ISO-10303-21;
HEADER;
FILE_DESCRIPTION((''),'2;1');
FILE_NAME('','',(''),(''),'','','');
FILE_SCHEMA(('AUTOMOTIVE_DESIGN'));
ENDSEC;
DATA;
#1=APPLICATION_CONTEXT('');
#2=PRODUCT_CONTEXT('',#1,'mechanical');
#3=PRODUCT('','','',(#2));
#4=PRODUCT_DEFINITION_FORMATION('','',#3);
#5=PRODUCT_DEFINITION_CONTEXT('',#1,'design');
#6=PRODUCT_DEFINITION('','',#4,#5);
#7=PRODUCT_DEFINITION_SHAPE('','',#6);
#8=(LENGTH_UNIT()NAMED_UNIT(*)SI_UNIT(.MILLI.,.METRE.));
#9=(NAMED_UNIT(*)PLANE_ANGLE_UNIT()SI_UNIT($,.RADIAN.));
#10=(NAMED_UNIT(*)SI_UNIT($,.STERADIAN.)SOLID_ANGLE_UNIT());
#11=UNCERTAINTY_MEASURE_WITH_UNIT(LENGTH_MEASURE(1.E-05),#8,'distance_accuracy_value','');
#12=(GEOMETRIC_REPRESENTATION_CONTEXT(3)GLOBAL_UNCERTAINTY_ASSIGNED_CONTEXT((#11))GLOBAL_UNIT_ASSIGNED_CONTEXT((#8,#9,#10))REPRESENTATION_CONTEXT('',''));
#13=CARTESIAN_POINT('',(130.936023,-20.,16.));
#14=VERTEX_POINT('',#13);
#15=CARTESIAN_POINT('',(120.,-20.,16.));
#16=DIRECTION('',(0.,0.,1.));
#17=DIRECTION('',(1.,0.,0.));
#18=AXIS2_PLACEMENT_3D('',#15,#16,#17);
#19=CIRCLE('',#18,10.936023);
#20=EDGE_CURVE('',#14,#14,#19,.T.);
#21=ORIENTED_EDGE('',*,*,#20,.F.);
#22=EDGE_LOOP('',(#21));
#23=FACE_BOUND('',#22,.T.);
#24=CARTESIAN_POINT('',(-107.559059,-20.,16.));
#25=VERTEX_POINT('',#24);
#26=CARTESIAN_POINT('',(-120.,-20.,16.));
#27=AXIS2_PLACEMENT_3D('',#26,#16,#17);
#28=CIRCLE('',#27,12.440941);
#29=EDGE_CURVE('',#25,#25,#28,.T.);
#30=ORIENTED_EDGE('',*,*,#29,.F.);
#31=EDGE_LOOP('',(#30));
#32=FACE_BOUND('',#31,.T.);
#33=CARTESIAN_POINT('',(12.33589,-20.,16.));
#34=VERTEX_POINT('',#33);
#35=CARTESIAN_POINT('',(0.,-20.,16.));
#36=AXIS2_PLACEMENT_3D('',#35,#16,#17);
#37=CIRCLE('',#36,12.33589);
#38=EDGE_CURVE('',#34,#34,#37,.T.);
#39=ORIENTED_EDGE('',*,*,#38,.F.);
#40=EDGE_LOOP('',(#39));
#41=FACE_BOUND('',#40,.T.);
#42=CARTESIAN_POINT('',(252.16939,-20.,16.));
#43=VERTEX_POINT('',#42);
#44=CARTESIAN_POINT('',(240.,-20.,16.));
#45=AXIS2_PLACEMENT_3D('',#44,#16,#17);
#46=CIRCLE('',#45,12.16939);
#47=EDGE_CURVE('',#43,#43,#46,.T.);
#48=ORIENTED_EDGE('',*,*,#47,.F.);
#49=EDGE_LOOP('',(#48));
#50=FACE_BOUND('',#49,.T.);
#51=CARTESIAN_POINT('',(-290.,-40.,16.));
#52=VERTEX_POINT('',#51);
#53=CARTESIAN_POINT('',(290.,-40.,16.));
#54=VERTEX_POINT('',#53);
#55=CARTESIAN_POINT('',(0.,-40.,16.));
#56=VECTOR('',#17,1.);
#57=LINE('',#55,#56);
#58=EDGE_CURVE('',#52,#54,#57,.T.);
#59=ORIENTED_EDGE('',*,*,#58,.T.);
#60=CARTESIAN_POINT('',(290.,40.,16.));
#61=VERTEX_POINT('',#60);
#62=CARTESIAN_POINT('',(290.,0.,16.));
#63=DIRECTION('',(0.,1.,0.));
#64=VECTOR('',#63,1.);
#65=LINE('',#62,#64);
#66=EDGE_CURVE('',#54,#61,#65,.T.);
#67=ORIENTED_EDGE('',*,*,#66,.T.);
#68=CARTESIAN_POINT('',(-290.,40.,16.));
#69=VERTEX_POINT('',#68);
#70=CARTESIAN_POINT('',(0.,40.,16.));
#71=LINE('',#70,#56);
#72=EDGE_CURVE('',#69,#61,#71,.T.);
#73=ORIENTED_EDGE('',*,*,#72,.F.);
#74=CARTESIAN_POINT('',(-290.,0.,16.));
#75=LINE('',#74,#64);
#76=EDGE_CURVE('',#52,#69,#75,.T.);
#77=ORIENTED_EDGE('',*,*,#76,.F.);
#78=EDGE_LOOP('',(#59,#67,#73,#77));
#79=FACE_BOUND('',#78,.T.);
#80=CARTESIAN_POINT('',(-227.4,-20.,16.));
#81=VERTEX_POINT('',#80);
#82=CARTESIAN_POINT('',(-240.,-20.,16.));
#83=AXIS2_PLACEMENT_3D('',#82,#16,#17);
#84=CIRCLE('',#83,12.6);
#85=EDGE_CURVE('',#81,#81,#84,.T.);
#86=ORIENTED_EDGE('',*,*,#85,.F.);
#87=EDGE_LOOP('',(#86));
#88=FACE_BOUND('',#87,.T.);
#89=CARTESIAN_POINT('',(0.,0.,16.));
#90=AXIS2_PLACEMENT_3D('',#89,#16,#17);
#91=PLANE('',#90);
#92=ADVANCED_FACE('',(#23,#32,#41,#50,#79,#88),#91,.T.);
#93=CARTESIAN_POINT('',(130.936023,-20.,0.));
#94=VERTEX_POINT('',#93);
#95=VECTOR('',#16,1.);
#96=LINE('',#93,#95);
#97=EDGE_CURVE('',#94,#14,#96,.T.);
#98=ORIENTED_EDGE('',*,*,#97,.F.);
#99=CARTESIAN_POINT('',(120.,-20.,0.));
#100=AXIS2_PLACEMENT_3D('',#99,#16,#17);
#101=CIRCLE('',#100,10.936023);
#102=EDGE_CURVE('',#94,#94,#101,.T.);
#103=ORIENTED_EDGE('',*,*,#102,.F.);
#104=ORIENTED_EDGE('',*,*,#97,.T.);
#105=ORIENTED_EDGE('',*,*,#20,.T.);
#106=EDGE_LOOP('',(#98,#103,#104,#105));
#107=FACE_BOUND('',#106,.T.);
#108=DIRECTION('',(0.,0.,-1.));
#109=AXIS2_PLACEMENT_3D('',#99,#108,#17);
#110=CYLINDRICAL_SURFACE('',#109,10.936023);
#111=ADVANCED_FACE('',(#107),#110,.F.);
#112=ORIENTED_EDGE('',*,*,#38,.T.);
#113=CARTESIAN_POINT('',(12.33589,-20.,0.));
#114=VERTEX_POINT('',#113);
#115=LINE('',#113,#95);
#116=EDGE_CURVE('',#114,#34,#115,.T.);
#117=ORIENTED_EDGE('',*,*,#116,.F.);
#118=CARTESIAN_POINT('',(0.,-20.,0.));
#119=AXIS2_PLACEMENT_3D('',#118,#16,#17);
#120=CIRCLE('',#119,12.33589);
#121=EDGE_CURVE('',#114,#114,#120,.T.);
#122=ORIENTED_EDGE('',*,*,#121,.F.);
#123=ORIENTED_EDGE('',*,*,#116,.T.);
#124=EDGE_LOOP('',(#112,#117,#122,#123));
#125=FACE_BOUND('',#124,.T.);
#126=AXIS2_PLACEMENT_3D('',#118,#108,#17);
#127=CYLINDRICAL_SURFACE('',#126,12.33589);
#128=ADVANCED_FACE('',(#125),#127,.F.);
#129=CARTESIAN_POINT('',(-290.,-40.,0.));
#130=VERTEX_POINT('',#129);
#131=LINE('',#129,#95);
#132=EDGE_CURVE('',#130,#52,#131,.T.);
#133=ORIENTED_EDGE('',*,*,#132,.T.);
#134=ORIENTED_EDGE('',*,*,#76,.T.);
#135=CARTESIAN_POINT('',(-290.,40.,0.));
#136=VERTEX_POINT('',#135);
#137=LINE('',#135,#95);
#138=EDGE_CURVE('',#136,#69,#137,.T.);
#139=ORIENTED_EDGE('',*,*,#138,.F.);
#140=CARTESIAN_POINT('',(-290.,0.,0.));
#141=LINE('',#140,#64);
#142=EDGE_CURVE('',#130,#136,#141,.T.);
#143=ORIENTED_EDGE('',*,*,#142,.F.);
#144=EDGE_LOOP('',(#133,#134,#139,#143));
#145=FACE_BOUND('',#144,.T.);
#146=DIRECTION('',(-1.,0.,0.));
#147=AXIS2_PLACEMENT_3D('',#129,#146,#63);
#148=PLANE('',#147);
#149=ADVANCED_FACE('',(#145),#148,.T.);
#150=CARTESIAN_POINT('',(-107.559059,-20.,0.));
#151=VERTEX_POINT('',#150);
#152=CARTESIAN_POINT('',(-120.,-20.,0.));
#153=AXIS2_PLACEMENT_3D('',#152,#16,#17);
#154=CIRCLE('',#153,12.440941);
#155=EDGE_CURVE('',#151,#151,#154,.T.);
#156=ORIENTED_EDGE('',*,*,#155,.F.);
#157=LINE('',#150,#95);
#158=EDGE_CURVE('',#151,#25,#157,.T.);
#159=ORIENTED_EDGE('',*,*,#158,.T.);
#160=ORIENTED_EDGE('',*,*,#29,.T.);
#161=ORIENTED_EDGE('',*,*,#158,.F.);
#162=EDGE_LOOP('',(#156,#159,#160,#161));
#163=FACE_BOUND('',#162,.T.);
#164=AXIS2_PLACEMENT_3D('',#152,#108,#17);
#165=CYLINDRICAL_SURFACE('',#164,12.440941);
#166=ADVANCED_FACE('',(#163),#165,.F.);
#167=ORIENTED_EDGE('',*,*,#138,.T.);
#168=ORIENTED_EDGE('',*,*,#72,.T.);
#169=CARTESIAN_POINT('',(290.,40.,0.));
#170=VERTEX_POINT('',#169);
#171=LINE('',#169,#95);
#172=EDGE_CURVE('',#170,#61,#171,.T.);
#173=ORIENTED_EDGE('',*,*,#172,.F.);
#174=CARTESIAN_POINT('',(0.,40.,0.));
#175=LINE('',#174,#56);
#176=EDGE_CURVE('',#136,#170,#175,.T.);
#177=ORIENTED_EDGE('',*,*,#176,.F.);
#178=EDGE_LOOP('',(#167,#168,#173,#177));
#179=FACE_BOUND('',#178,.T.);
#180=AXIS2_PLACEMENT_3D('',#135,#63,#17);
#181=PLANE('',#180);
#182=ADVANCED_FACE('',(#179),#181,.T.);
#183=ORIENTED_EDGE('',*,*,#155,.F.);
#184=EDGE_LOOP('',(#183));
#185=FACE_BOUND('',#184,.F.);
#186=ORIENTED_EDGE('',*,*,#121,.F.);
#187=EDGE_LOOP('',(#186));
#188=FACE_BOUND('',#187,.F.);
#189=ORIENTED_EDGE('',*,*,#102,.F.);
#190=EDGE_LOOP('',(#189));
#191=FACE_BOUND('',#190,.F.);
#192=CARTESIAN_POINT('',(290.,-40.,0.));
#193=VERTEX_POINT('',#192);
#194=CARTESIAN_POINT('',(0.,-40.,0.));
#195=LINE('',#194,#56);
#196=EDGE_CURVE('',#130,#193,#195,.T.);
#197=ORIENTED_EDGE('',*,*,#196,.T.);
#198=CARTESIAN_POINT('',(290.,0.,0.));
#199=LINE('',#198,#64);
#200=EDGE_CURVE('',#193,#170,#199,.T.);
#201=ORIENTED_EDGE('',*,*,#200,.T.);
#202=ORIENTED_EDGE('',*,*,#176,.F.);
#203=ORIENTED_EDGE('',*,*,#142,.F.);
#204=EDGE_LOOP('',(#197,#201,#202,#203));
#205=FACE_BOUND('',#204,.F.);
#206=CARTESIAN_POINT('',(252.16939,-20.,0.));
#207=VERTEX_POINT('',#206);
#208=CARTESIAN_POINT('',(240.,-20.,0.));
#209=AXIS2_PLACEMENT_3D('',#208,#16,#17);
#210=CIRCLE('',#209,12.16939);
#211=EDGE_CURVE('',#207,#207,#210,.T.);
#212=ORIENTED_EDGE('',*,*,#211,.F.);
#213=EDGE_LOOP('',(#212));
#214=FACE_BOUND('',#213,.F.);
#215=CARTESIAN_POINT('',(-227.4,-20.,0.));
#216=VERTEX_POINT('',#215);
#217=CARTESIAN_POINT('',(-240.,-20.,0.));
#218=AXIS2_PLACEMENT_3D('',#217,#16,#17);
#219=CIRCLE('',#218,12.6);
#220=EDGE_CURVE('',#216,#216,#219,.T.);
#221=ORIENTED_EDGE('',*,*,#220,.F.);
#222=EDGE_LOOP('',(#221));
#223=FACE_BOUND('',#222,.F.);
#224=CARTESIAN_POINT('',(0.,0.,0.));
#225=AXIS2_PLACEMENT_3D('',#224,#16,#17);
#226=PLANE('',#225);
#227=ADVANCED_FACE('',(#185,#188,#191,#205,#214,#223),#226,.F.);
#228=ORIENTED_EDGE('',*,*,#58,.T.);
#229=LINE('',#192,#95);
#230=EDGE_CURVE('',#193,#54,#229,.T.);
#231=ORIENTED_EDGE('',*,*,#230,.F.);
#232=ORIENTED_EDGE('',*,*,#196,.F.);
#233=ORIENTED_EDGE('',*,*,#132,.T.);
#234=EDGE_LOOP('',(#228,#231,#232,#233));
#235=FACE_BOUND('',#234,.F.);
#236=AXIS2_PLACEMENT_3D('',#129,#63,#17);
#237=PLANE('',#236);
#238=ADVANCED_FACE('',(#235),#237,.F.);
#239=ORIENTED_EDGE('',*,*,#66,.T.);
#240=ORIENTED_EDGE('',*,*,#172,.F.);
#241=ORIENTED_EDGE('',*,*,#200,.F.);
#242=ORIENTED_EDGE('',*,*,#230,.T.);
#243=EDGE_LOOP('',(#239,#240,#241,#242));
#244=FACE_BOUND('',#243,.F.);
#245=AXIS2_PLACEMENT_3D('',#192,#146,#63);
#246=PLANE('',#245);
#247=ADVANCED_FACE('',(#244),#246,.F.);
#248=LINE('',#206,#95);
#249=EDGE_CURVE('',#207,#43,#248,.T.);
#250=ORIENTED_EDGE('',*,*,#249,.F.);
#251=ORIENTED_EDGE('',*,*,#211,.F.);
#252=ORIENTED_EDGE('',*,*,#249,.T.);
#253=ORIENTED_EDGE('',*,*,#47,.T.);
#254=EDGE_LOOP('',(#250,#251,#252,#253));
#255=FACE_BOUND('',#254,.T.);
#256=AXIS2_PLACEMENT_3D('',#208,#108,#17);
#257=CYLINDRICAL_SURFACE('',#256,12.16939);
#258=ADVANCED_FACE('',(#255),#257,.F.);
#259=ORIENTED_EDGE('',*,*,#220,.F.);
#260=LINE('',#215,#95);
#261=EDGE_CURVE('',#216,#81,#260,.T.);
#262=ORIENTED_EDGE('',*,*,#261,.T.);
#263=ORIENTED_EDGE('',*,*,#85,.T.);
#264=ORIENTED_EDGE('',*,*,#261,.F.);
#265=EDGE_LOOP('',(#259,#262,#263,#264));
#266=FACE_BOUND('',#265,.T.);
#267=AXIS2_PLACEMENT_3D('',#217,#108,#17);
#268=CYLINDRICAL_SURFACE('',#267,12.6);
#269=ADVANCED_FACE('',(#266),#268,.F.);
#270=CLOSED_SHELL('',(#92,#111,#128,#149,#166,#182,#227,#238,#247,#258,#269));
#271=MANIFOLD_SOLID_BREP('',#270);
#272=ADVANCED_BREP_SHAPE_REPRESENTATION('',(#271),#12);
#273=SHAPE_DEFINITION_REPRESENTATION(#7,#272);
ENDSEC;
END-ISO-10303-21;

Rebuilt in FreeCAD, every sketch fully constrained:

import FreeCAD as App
import Part
import Sketcher

V = App.Vector
Q = App.Units.Quantity

doc = App.newDocument("Part")
body = doc.addObject("PartDesign::Body", "Body")

# Sketch on XY plane
sketch1 = body.newObject("Sketcher::SketchObject", "Sketch")
sketch1.AttachmentSupport = (doc.getObject("XY_Plane"), [""])
sketch1.MapMode = "FlatFace"
sketch1.addGeometry([
    Part.LineSegment(V(-290, 40, 0), V(-290, -40, 0)),  # 0
    Part.LineSegment(V(-290, -40, 0), V(290, -40, 0)),  # 1
    Part.LineSegment(V(290, -40, 0), V(290, 40, 0)),  # 2
    Part.LineSegment(V(290, 40, 0), V(-290, 40, 0)),  # 3
    Part.Circle(V(-240, -20, 0), V(0, 0, 1), 13),  # 4
    Part.Circle(V(-120, -20, 0), V(0, 0, 1), 12),  # 5
    Part.Circle(V(0, -20, 0), V(0, 0, 1), 12),  # 6
    Part.Circle(V(120, -20, 0), V(0, 0, 1), 11),  # 7
    Part.Circle(V(240, -20, 0), V(0, 0, 1), 12),  # 8
], False)
sketch1.addConstraint([
    Sketcher.Constraint("Coincident", 0, 2, 1, 1),
    Sketcher.Constraint("Coincident", 1, 2, 2, 1),
    Sketcher.Constraint("Coincident", 2, 2, 3, 1),
    Sketcher.Constraint("Coincident", 3, 2, 0, 1),
    Sketcher.Constraint("Vertical", 0),
    Sketcher.Constraint("Horizontal", 1),
    Sketcher.Constraint("Vertical", 2),
    Sketcher.Constraint("Horizontal", 3),
    Sketcher.Constraint("Symmetric", 0, 2, 2, 2, -1, 1),
    Sketcher.Constraint("Symmetric", 5, 3, 7, 3, -2),
    Sketcher.Constraint("Symmetric", 4, 3, 8, 3, -2),
    Sketcher.Constraint("PointOnObject", 6, 3, -2),
    Sketcher.Constraint("Horizontal", 4, 3, 5, 3),
    Sketcher.Constraint("Horizontal", 5, 3, 6, 3),
    Sketcher.Constraint("Diameter", 4, Q("25.2 mm")),
    Sketcher.Constraint("DistanceX", 1, 1, 1, 2, Q("580 mm")),
    Sketcher.Constraint("DistanceY", 0, 2, 0, 1, Q("80 mm")),
    Sketcher.Constraint("DistanceX", 4, 3, -1, 1, Q("240 mm")),
    Sketcher.Constraint("DistanceY", 4, 3, -1, 1, Q("20 mm")),
    Sketcher.Constraint("DistanceX", 5, 3, -1, 1, Q("120 mm")),
    Sketcher.Constraint("Diameter", 6, Q("24.67178 mm")),
    Sketcher.Constraint("Diameter", 8, Q("24.33878 mm")),
    Sketcher.Constraint("Diameter", 5, Q("24.881882 mm")),
    Sketcher.Constraint("Diameter", 7, Q("21.872046 mm")),
])
pad1 = body.newObject("PartDesign::Pad", "Pad")
pad1.Profile = sketch1
pad1.Length = 16

doc.recompute()
